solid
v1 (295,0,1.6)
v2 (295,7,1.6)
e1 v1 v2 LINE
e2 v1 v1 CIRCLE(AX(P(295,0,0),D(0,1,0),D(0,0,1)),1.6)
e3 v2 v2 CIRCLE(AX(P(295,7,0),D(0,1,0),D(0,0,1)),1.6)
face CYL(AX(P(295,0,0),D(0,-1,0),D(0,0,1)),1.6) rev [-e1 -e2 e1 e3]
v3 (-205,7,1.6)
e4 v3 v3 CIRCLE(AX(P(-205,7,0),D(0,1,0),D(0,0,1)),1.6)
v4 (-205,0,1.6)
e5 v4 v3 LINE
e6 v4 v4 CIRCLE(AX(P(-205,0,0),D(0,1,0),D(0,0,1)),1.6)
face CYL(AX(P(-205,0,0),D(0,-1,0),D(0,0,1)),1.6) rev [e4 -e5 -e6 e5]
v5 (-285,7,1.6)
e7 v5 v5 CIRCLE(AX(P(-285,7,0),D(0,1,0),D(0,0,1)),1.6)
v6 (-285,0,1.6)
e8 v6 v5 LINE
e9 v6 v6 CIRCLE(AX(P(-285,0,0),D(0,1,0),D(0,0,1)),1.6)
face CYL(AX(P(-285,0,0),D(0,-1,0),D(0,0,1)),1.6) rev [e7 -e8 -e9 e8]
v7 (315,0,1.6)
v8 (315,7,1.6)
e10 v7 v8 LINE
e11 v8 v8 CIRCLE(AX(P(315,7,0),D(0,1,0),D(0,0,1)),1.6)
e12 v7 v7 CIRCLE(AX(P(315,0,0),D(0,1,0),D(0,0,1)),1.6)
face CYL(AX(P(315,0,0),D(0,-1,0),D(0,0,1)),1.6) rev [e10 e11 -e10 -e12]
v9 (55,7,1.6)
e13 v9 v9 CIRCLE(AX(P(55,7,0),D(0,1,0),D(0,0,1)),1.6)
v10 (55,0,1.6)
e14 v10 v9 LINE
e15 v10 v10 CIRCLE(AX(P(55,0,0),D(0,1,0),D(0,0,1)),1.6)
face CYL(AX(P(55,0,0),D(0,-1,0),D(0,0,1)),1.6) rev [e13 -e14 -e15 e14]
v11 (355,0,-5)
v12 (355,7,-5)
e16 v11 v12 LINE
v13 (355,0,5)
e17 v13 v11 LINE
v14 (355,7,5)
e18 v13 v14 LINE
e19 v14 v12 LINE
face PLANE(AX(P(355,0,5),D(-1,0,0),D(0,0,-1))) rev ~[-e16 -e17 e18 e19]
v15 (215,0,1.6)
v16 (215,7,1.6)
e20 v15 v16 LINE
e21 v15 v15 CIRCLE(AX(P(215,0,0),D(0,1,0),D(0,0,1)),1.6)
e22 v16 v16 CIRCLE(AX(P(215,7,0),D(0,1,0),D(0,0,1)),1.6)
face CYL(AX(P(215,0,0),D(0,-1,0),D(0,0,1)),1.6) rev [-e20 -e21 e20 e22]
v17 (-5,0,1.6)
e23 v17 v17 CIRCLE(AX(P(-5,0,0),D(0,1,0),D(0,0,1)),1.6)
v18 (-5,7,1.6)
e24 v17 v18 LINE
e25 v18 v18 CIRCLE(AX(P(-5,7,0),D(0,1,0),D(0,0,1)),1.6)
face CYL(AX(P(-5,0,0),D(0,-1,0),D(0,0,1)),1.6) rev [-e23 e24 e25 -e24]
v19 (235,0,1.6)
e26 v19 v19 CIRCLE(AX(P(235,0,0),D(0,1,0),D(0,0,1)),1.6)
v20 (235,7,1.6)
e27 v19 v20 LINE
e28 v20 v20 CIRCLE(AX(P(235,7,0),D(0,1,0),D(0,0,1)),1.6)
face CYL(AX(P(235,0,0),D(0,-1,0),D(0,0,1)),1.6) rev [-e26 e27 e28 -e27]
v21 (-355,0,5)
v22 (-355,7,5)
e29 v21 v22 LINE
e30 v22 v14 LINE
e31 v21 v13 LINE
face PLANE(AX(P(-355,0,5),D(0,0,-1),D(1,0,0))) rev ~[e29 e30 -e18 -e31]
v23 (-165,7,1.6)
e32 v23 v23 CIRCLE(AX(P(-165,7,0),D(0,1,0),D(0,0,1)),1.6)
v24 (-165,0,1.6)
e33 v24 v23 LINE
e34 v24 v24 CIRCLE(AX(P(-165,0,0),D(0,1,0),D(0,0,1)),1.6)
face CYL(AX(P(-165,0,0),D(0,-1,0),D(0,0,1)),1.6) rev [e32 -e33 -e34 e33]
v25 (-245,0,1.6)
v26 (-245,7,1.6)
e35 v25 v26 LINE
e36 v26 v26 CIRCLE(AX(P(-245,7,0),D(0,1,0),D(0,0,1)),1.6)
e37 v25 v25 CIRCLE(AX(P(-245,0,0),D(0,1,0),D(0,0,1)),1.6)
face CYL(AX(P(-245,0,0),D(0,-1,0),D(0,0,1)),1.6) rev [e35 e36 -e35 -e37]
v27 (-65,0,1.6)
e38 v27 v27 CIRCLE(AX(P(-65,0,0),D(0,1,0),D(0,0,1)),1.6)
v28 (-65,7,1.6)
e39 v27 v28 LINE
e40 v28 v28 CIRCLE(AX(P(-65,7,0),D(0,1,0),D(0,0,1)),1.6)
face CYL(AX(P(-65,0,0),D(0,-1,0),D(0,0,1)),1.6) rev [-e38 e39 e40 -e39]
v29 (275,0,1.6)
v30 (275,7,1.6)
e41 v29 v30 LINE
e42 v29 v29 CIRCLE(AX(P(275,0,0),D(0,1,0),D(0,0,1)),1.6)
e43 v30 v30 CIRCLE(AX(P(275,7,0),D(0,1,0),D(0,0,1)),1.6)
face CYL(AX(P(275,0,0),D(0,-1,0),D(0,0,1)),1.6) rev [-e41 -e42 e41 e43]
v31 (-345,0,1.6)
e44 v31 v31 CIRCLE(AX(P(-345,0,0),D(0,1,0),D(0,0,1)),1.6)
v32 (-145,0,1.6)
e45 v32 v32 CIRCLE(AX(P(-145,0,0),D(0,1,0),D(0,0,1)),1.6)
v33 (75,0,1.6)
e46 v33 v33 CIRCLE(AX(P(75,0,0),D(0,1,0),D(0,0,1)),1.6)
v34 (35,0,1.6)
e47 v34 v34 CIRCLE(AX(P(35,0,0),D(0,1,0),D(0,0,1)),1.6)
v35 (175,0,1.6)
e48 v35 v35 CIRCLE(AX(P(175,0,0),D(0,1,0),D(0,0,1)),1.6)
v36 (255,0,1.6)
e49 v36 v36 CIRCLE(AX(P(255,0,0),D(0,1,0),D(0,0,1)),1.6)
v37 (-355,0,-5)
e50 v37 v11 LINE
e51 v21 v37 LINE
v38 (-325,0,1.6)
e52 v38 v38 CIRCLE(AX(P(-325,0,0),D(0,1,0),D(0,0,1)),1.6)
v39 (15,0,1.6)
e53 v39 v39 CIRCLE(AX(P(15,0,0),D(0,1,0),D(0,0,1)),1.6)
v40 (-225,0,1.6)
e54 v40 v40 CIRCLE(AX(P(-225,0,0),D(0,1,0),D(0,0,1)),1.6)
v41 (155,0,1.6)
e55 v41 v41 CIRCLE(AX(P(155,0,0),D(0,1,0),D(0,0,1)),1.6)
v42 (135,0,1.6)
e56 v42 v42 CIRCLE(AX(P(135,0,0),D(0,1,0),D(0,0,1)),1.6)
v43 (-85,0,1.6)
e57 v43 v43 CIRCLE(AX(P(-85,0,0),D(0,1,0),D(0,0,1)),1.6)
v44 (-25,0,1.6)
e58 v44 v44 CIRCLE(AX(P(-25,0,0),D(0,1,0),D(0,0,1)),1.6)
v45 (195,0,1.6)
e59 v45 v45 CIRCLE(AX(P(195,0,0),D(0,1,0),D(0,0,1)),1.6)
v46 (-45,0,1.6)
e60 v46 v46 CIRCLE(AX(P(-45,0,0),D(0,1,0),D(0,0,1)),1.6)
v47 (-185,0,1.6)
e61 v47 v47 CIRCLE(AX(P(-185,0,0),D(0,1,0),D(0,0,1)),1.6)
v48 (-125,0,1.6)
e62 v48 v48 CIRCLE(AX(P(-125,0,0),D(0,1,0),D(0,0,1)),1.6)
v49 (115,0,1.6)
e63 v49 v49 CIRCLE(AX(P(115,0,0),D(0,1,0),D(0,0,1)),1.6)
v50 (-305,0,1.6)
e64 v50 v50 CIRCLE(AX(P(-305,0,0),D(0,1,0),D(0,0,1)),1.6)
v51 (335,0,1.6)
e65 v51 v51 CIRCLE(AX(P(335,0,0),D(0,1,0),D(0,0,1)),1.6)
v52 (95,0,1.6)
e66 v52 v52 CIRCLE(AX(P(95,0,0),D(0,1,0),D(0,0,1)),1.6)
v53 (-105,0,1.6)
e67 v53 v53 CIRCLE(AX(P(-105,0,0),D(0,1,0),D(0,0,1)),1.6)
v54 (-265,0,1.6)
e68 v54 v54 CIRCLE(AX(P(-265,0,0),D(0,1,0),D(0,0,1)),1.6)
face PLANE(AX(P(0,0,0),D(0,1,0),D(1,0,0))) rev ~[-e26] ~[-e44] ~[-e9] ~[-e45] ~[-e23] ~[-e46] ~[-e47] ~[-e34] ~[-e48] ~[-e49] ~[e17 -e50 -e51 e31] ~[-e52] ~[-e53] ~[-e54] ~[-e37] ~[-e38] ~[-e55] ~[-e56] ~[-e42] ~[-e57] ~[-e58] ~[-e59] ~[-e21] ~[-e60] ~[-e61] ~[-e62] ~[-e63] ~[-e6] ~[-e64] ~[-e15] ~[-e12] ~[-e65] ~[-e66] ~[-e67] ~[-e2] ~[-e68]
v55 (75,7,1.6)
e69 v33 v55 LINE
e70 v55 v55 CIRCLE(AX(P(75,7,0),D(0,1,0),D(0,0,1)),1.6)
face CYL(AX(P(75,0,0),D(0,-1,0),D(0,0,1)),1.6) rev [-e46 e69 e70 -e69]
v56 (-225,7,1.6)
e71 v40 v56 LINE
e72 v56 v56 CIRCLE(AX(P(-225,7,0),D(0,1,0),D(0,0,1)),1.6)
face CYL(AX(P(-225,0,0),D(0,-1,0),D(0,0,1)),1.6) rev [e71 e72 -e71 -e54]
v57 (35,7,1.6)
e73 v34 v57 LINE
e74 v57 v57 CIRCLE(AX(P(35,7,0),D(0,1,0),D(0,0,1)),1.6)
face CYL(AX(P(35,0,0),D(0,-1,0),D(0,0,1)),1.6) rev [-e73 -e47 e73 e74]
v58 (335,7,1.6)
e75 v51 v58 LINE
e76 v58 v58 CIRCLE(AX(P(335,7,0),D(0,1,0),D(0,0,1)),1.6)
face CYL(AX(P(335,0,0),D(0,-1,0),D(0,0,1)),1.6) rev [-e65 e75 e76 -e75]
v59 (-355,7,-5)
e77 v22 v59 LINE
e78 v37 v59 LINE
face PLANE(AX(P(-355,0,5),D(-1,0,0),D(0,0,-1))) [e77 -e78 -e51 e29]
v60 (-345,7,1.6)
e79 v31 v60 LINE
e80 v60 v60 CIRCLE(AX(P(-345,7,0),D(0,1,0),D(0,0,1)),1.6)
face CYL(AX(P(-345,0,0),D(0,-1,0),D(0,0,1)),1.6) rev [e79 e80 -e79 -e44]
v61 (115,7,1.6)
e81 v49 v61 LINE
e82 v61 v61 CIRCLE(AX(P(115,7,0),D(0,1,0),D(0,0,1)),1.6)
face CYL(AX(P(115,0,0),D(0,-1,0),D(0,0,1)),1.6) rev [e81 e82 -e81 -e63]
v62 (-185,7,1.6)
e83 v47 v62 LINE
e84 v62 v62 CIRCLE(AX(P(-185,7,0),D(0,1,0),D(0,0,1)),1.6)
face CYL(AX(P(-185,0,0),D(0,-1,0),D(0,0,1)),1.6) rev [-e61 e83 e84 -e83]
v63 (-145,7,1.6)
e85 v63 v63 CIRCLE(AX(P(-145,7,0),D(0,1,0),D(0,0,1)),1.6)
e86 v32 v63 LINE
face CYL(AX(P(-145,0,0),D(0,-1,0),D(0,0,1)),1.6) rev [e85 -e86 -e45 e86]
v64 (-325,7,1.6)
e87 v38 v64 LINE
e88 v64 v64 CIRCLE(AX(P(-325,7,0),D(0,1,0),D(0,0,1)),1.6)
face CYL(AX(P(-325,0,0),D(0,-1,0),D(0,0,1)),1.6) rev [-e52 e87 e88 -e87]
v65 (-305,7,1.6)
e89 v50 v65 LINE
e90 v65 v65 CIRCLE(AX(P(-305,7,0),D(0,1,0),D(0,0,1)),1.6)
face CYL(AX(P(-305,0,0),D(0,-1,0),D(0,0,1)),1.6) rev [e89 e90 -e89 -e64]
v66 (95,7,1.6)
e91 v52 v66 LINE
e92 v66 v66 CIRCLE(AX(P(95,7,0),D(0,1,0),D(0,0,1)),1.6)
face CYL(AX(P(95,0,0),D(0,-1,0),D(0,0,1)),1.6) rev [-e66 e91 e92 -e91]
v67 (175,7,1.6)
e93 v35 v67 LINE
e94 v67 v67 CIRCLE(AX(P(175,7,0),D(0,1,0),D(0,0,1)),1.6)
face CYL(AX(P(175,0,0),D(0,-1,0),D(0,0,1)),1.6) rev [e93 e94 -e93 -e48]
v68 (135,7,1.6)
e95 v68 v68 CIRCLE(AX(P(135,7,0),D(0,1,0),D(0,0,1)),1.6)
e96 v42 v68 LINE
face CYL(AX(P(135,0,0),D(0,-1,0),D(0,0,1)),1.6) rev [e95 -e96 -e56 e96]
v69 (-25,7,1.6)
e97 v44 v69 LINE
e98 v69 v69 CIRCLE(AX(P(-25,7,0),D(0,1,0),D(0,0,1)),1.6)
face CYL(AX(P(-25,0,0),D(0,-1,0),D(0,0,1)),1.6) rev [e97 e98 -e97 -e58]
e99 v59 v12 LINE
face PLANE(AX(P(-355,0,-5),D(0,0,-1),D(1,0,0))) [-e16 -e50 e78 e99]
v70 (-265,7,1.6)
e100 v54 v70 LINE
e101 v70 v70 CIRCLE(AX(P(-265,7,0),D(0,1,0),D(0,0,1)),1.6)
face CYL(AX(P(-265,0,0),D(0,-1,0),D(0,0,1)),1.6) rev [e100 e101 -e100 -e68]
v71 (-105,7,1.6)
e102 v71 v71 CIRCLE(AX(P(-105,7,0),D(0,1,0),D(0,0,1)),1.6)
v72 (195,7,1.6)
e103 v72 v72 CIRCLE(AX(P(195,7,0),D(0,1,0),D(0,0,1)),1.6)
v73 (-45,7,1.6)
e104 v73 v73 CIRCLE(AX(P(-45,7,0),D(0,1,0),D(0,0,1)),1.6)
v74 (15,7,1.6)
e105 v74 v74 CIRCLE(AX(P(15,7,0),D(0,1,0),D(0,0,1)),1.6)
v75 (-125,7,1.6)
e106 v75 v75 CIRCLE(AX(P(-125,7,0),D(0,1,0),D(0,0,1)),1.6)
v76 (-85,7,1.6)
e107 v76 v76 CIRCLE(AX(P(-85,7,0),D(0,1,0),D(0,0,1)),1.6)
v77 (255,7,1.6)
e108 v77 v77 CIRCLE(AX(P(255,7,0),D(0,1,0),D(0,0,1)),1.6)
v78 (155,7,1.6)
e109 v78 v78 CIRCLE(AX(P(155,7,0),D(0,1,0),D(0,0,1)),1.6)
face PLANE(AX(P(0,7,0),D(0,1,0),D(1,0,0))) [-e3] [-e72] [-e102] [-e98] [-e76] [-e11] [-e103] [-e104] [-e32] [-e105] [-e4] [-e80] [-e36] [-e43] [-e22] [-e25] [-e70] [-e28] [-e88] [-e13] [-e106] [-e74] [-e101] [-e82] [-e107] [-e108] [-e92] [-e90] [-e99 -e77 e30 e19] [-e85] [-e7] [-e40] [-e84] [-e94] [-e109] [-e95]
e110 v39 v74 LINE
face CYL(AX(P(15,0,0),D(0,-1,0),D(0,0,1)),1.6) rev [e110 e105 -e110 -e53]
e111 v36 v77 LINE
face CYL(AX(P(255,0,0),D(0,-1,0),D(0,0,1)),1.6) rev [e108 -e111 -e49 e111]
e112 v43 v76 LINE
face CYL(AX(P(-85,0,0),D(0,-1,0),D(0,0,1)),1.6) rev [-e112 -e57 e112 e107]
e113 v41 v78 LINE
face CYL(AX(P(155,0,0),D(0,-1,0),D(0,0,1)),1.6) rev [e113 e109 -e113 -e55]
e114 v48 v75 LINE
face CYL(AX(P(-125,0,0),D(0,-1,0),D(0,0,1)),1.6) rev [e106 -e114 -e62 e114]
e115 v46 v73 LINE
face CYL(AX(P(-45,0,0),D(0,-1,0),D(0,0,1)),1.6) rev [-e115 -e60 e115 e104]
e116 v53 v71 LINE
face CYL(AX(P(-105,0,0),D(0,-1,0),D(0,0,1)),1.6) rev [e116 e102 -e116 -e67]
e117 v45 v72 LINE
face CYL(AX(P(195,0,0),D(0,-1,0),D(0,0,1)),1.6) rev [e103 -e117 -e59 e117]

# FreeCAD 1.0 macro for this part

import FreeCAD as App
import Part
import Sketcher

doc = App.newDocument("Part")
body = doc.addObject("PartDesign::Body", "Body")

# Sketch on XZ plane
sketch1 = body.newObject("Sketcher::SketchObject", "Sketch")
sketch1.AttachmentSupport = (doc.getObject("XZ_Plane"), [""])
sketch1.MapMode = "FlatFace"
sketch1.addGeometry(Part.LineSegment(App.Vector(-355, -5, 0), App.Vector(-355, 5, 0)), False)
sketch1.addGeometry(Part.LineSegment(App.Vector(-355, 5, 0), App.Vector(355, 5, 0)), False)
sketch1.addGeometry(Part.LineSegment(App.Vector(355, 5, 0), App.Vector(355, -5, 0)), False)
sketch1.addGeometry(Part.LineSegment(App.Vector(355, -5, 0), App.Vector(-355, -5, 0)), False)
sketch1.addGeometry(Part.Circle(App.Vector(-345, 0, 0), App.Vector(0, 0, 1), 1.6), False)
sketch1.addGeometry(Part.Circle(App.Vector(-325, 0, 0), App.Vector(0, 0, 1), 1.6), False)
sketch1.addGeometry(Part.Circle(App.Vector(-305, 0, 0), App.Vector(0, 0, 1), 1.6), False)
sketch1.addGeometry(Part.Circle(App.Vector(-285, 0, 0), App.Vector(0, 0, 1), 1.6), False)
sketch1.addGeometry(Part.Circle(App.Vector(-265, 0, 0), App.Vector(0, 0, 1), 1.6), False)
sketch1.addGeometry(Part.Circle(App.Vector(-245, 0, 0), App.Vector(0, 0, 1), 1.6), False)
sketch1.addGeometry(Part.Circle(App.Vector(-225, 0, 0), App.Vector(0, 0, 1), 1.6), False)
sketch1.addGeometry(Part.Circle(App.Vector(-205, 0, 0), App.Vector(0, 0, 1), 1.6), False)
sketch1.addGeometry(Part.Circle(App.Vector(-185, 0, 0), App.Vector(0, 0, 1), 1.6), False)
sketch1.addGeometry(Part.Circle(App.Vector(-165, 0, 0), App.Vector(0, 0, 1), 1.6), False)
sketch1.addGeometry(Part.Circle(App.Vector(-145, 0, 0), App.Vector(0, 0, 1), 1.6), False)
sketch1.addGeometry(Part.Circle(App.Vector(-125, 0, 0), App.Vector(0, 0, 1), 1.6), False)
sketch1.addGeometry(Part.Circle(App.Vector(-105, 0, 0), App.Vector(0, 0, 1), 1.6), False)
sketch1.addGeometry(Part.Circle(App.Vector(-85, 0, 0), App.Vector(0, 0, 1), 1.6), False)
sketch1.addGeometry(Part.Circle(App.Vector(-65, 0, 0), App.Vector(0, 0, 1), 1.6), False)
sketch1.addGeometry(Part.Circle(App.Vector(-45, 0, 0), App.Vector(0, 0, 1), 1.6), False)
sketch1.addGeometry(Part.Circle(App.Vector(-25, 0, 0), App.Vector(0, 0, 1), 1.6), False)
sketch1.addGeometry(Part.Circle(App.Vector(-5, 0, 0), App.Vector(0, 0, 1), 1.6), False)
sketch1.addGeometry(Part.Circle(App.Vector(15, 0, 0), App.Vector(0, 0, 1), 1.6), False)
sketch1.addGeometry(Part.Circle(App.Vector(35, 0, 0), App.Vector(0, 0, 1), 1.6), False)
sketch1.addGeometry(Part.Circle(App.Vector(55, 0, 0), App.Vector(0, 0, 1), 1.6), False)
sketch1.addGeometry(Part.Circle(App.Vector(75, 0, 0), App.Vector(0, 0, 1), 1.6), False)
sketch1.addGeometry(Part.Circle(App.Vector(95, 0, 0), App.Vector(0, 0, 1), 1.6), False)
sketch1.addGeometry(Part.Circle(App.Vector(115, 0, 0), App.Vector(0, 0, 1), 1.6), False)
sketch1.addGeometry(Part.Circle(App.Vector(135, 0, 0), App.Vector(0, 0, 1), 1.6), False)
sketch1.addGeometry(Part.Circle(App.Vector(155, 0, 0), App.Vector(0, 0, 1), 1.6), False)
sketch1.addGeometry(Part.Circle(App.Vector(175, 0, 0), App.Vector(0, 0, 1), 1.6), False)
sketch1.addGeometry(Part.Circle(App.Vector(195, 0, 0), App.Vector(0, 0, 1), 1.6), False)
sketch1.addGeometry(Part.Circle(App.Vector(215, 0, 0), App.Vector(0, 0, 1), 1.6), False)
sketch1.addGeometry(Part.Circle(App.Vector(235, 0, 0), App.Vector(0, 0, 1), 1.6), False)
sketch1.addGeometry(Part.Circle(App.Vector(255, 0, 0), App.Vector(0, 0, 1), 1.6), False)
sketch1.addGeometry(Part.Circle(App.Vector(275, 0, 0), App.Vector(0, 0, 1), 1.6), False)
sketch1.addGeometry(Part.Circle(App.Vector(295, 0, 0), App.Vector(0, 0, 1), 1.6), False)
sketch1.addGeometry(Part.Circle(App.Vector(315, 0, 0), App.Vector(0, 0, 1), 1.6), False)
sketch1.addGeometry(Part.Circle(App.Vector(335, 0, 0), App.Vector(0, 0, 1), 1.6), False)
sketch1.addConstraint(Sketcher.Constraint("Coincident", 0, 2, 1, 1))
sketch1.addConstraint(Sketcher.Constraint("Coincident", 1, 2, 2, 1))
sketch1.addConstraint(Sketcher.Constraint("Coincident", 2, 2, 3, 1))
sketch1.addConstraint(Sketcher.Constraint("Coincident", 3, 2, 0, 1))
sketch1.addConstraint(Sketcher.Constraint("Vertical", 0))
sketch1.addConstraint(Sketcher.Constraint("Horizontal", 1))
sketch1.addConstraint(Sketcher.Constraint("Vertical", 2))
sketch1.addConstraint(Sketcher.Constraint("Horizontal", 3))
sketch1.addConstraint(Sketcher.Constraint("Equal", 4, 5))
sketch1.addConstraint(Sketcher.Constraint("Equal", 5, 6))
sketch1.addConstraint(Sketcher.Constraint("Equal", 6, 7))
sketch1.addConstraint(Sketcher.Constraint("Equal", 7, 8))
sketch1.addConstraint(Sketcher.Constraint("Equal", 8, 9))
sketch1.addConstraint(Sketcher.Constraint("Equal", 9, 10))
sketch1.addConstraint(Sketcher.Constraint("Equal", 10, 11))
sketch1.addConstraint(Sketcher.Constraint("Equal", 11, 12))
sketch1.addConstraint(Sketcher.Constraint("Equal", 12, 13))
sketch1.addConstraint(Sketcher.Constraint("Equal", 13, 14))
sketch1.addConstraint(Sketcher.Constraint("Equal", 14, 15))
sketch1.addConstraint(Sketcher.Constraint("Equal", 15, 16))
sketch1.addConstraint(Sketcher.Constraint("Equal", 16, 17))
sketch1.addConstraint(Sketcher.Constraint("Equal", 17, 18))
sketch1.addConstraint(Sketcher.Constraint("Equal", 18, 19))
sketch1.addConstraint(Sketcher.Constraint("Equal", 19, 20))
sketch1.addConstraint(Sketcher.Constraint("Equal", 20, 21))
sketch1.addConstraint(Sketcher.Constraint("Equal", 21, 22))
sketch1.addConstraint(Sketcher.Constraint("Equal", 22, 23))
sketch1.addConstraint(Sketcher.Constraint("Equal", 23, 24))
sketch1.addConstraint(Sketcher.Constraint("Equal", 24, 25))
sketch1.addConstraint(Sketcher.Constraint("Equal", 25, 26))
sketch1.addConstraint(Sketcher.Constraint("Equal", 26, 27))
sketch1.addConstraint(Sketcher.Constraint("Equal", 27, 28))
sketch1.addConstraint(Sketcher.Constraint("Equal", 28, 29))
sketch1.addConstraint(Sketcher.Constraint("Equal", 29, 30))
sketch1.addConstraint(Sketcher.Constraint("Equal", 30, 31))
sketch1.addConstraint(Sketcher.Constraint("Equal", 31, 32))
sketch1.addConstraint(Sketcher.Constraint("Equal", 32, 33))
sketch1.addConstraint(Sketcher.Constraint("Equal", 33, 34))
sketch1.addConstraint(Sketcher.Constraint("Equal", 34, 35))
sketch1.addConstraint(Sketcher.Constraint("Equal", 35, 36))
sketch1.addConstraint(Sketcher.Constraint("Equal", 36, 37))
sketch1.addConstraint(Sketcher.Constraint("Equal", 37, 38))
sketch1.addConstraint(Sketcher.Constraint("Symmetric", 0, 2, 2, 2, -1, 1))
sketch1.addConstraint(Sketcher.Constraint("PointOnObject", 4, 3, -1))
sketch1.addConstraint(Sketcher.Constraint("PointOnObject", 5, 3, -1))
sketch1.addConstraint(Sketcher.Constraint("PointOnObject", 6, 3, -1))
sketch1.addConstraint(Sketcher.Constraint("PointOnObject", 7, 3, -1))
sketch1.addConstraint(Sketcher.Constraint("PointOnObject", 8, 3, -1))
sketch1.addConstraint(Sketcher.Constraint("PointOnObject", 9, 3, -1))
sketch1.addConstraint(Sketcher.Constraint("PointOnObject", 10, 3, -1))
sketch1.addConstraint(Sketcher.Constraint("PointOnObject", 11, 3, -1))
sketch1.addConstraint(Sketcher.Constraint("PointOnObject", 12, 3, -1))
sketch1.addConstraint(Sketcher.Constraint("PointOnObject", 13, 3, -1))
sketch1.addConstraint(Sketcher.Constraint("PointOnObject", 14, 3, -1))
sketch1.addConstraint(Sketcher.Constraint("PointOnObject", 15, 3, -1))
sketch1.addConstraint(Sketcher.Constraint("PointOnObject", 16, 3, -1))
sketch1.addConstraint(Sketcher.Constraint("PointOnObject", 17, 3, -1))
sketch1.addConstraint(Sketcher.Constraint("PointOnObject", 18, 3, -1))
sketch1.addConstraint(Sketcher.Constraint("PointOnObject", 19, 3, -1))
sketch1.addConstraint(Sketcher.Constraint("PointOnObject", 20, 3, -1))
sketch1.addConstraint(Sketcher.Constraint("PointOnObject", 21, 3, -1))
sketch1.addConstraint(Sketcher.Constraint("PointOnObject", 22, 3, -1))
sketch1.addConstraint(Sketcher.Constraint("PointOnObject", 23, 3, -1))
sketch1.addConstraint(Sketcher.Constraint("PointOnObject", 24, 3, -1))
sketch1.addConstraint(Sketcher.Constraint("PointOnObject", 25, 3, -1))
sketch1.addConstraint(Sketcher.Constraint("PointOnObject", 26, 3, -1))
sketch1.addConstraint(Sketcher.Constraint("PointOnObject", 27, 3, -1))
sketch1.addConstraint(Sketcher.Constraint("PointOnObject", 28, 3, -1))
sketch1.addConstraint(Sketcher.Constraint("PointOnObject", 29, 3, -1))
sketch1.addConstraint(Sketcher.Constraint("PointOnObject", 30, 3, -1))
sketch1.addConstraint(Sketcher.Constraint("PointOnObject", 31, 3, -1))
sketch1.addConstraint(Sketcher.Constraint("PointOnObject", 32, 3, -1))
sketch1.addConstraint(Sketcher.Constraint("PointOnObject", 33, 3, -1))
sketch1.addConstraint(Sketcher.Constraint("PointOnObject", 34, 3, -1))
sketch1.addConstraint(Sketcher.Constraint("PointOnObject", 35, 3, -1))
sketch1.addConstraint(Sketcher.Constraint("PointOnObject", 36, 3, -1))
sketch1.addConstraint(Sketcher.Constraint("PointOnObject", 37, 3, -1))
sketch1.addConstraint(Sketcher.Constraint("PointOnObject", 38, 3, -1))
sketch1.addConstraint(Sketcher.Constraint("Diameter", 4, 3.2))
sketch1.addConstraint(Sketcher.Constraint("DistanceX", 1, 1, 1, 2, 710.0))
sketch1.addConstraint(Sketcher.Constraint("DistanceY", 0, 1, 0, 2, 10.0))
sketch1.addConstraint(Sketcher.Constraint("DistanceX", 4, 3, -1, 1, 345.0))
sketch1.addConstraint(Sketcher.Constraint("DistanceX", 5, 3, -1, 1, 325.0))
sketch1.addConstraint(Sketcher.Constraint("DistanceX", 6, 3, -1, 1, 305.0))
sketch1.addConstraint(Sketcher.Constraint("DistanceX", 7, 3, -1, 1, 285.0))
sketch1.addConstraint(Sketcher.Constraint("DistanceX", 8, 3, -1, 1, 265.0))
sketch1.addConstraint(Sketcher.Constraint("DistanceX", 9, 3, -1, 1, 245.0))
sketch1.addConstraint(Sketcher.Constraint("DistanceX", 10, 3, -1, 1, 225.0))
sketch1.addConstraint(Sketcher.Constraint("DistanceX", 11, 3, -1, 1, 205.0))
sketch1.addConstraint(Sketcher.Constraint("DistanceX", 12, 3, -1, 1, 185.0))
sketch1.addConstraint(Sketcher.Constraint("DistanceX", 13, 3, -1, 1, 165.0))
sketch1.addConstraint(Sketcher.Constraint("DistanceX", 14, 3, -1, 1, 145.0))
sketch1.addConstraint(Sketcher.Constraint("DistanceX", 15, 3, -1, 1, 125.0))
sketch1.addConstraint(Sketcher.Constraint("DistanceX", 16, 3, -1, 1, 105.0))
sketch1.addConstraint(Sketcher.Constraint("DistanceX", 17, 3, -1, 1, 85.0))
sketch1.addConstraint(Sketcher.Constraint("DistanceX", 18, 3, -1, 1, 65.0))
sketch1.addConstraint(Sketcher.Constraint("DistanceX", 19, 3, -1, 1, 45.0))
sketch1.addConstraint(Sketcher.Constraint("DistanceX", 20, 3, -1, 1, 25.0))
sketch1.addConstraint(Sketcher.Constraint("DistanceX", 21, 3, -1, 1, 5.0))
sketch1.addConstraint(Sketcher.Constraint("DistanceX", -1, 1, 22, 3, 15.0))
sketch1.addConstraint(Sketcher.Constraint("DistanceX", -1, 1, 23, 3, 35.0))
sketch1.addConstraint(Sketcher.Constraint("DistanceX", -1, 1, 24, 3, 55.0))
sketch1.addConstraint(Sketcher.Constraint("DistanceX", -1, 1, 25, 3, 75.0))
sketch1.addConstraint(Sketcher.Constraint("DistanceX", -1, 1, 26, 3, 95.0))
sketch1.addConstraint(Sketcher.Constraint("DistanceX", -1, 1, 27, 3, 115.0))
sketch1.addConstraint(Sketcher.Constraint("DistanceX", -1, 1, 28, 3, 135.0))
sketch1.addConstraint(Sketcher.Constraint("DistanceX", -1, 1, 29, 3, 155.0))
sketch1.addConstraint(Sketcher.Constraint("DistanceX", -1, 1, 30, 3, 175.0))
sketch1.addConstraint(Sketcher.Constraint("DistanceX", -1, 1, 31, 3, 195.0))
sketch1.addConstraint(Sketcher.Constraint("DistanceX", -1, 1, 32, 3, 215.0))
sketch1.addConstraint(Sketcher.Constraint("DistanceX", -1, 1, 33, 3, 235.0))
sketch1.addConstraint(Sketcher.Constraint("DistanceX", -1, 1, 34, 3, 255.0))
sketch1.addConstraint(Sketcher.Constraint("DistanceX", -1, 1, 35, 3, 275.0))
sketch1.addConstraint(Sketcher.Constraint("DistanceX", -1, 1, 36, 3, 295.0))
sketch1.addConstraint(Sketcher.Constraint("DistanceX", -1, 1, 37, 3, 315.0))
sketch1.addConstraint(Sketcher.Constraint("DistanceX", -1, 1, 38, 3, 335.0))
pad1 = body.newObject("PartDesign::Pad", "Pad")
pad1.Profile = sketch1
pad1.Length = 7
pad1.Reversed = True

doc.recompute()
